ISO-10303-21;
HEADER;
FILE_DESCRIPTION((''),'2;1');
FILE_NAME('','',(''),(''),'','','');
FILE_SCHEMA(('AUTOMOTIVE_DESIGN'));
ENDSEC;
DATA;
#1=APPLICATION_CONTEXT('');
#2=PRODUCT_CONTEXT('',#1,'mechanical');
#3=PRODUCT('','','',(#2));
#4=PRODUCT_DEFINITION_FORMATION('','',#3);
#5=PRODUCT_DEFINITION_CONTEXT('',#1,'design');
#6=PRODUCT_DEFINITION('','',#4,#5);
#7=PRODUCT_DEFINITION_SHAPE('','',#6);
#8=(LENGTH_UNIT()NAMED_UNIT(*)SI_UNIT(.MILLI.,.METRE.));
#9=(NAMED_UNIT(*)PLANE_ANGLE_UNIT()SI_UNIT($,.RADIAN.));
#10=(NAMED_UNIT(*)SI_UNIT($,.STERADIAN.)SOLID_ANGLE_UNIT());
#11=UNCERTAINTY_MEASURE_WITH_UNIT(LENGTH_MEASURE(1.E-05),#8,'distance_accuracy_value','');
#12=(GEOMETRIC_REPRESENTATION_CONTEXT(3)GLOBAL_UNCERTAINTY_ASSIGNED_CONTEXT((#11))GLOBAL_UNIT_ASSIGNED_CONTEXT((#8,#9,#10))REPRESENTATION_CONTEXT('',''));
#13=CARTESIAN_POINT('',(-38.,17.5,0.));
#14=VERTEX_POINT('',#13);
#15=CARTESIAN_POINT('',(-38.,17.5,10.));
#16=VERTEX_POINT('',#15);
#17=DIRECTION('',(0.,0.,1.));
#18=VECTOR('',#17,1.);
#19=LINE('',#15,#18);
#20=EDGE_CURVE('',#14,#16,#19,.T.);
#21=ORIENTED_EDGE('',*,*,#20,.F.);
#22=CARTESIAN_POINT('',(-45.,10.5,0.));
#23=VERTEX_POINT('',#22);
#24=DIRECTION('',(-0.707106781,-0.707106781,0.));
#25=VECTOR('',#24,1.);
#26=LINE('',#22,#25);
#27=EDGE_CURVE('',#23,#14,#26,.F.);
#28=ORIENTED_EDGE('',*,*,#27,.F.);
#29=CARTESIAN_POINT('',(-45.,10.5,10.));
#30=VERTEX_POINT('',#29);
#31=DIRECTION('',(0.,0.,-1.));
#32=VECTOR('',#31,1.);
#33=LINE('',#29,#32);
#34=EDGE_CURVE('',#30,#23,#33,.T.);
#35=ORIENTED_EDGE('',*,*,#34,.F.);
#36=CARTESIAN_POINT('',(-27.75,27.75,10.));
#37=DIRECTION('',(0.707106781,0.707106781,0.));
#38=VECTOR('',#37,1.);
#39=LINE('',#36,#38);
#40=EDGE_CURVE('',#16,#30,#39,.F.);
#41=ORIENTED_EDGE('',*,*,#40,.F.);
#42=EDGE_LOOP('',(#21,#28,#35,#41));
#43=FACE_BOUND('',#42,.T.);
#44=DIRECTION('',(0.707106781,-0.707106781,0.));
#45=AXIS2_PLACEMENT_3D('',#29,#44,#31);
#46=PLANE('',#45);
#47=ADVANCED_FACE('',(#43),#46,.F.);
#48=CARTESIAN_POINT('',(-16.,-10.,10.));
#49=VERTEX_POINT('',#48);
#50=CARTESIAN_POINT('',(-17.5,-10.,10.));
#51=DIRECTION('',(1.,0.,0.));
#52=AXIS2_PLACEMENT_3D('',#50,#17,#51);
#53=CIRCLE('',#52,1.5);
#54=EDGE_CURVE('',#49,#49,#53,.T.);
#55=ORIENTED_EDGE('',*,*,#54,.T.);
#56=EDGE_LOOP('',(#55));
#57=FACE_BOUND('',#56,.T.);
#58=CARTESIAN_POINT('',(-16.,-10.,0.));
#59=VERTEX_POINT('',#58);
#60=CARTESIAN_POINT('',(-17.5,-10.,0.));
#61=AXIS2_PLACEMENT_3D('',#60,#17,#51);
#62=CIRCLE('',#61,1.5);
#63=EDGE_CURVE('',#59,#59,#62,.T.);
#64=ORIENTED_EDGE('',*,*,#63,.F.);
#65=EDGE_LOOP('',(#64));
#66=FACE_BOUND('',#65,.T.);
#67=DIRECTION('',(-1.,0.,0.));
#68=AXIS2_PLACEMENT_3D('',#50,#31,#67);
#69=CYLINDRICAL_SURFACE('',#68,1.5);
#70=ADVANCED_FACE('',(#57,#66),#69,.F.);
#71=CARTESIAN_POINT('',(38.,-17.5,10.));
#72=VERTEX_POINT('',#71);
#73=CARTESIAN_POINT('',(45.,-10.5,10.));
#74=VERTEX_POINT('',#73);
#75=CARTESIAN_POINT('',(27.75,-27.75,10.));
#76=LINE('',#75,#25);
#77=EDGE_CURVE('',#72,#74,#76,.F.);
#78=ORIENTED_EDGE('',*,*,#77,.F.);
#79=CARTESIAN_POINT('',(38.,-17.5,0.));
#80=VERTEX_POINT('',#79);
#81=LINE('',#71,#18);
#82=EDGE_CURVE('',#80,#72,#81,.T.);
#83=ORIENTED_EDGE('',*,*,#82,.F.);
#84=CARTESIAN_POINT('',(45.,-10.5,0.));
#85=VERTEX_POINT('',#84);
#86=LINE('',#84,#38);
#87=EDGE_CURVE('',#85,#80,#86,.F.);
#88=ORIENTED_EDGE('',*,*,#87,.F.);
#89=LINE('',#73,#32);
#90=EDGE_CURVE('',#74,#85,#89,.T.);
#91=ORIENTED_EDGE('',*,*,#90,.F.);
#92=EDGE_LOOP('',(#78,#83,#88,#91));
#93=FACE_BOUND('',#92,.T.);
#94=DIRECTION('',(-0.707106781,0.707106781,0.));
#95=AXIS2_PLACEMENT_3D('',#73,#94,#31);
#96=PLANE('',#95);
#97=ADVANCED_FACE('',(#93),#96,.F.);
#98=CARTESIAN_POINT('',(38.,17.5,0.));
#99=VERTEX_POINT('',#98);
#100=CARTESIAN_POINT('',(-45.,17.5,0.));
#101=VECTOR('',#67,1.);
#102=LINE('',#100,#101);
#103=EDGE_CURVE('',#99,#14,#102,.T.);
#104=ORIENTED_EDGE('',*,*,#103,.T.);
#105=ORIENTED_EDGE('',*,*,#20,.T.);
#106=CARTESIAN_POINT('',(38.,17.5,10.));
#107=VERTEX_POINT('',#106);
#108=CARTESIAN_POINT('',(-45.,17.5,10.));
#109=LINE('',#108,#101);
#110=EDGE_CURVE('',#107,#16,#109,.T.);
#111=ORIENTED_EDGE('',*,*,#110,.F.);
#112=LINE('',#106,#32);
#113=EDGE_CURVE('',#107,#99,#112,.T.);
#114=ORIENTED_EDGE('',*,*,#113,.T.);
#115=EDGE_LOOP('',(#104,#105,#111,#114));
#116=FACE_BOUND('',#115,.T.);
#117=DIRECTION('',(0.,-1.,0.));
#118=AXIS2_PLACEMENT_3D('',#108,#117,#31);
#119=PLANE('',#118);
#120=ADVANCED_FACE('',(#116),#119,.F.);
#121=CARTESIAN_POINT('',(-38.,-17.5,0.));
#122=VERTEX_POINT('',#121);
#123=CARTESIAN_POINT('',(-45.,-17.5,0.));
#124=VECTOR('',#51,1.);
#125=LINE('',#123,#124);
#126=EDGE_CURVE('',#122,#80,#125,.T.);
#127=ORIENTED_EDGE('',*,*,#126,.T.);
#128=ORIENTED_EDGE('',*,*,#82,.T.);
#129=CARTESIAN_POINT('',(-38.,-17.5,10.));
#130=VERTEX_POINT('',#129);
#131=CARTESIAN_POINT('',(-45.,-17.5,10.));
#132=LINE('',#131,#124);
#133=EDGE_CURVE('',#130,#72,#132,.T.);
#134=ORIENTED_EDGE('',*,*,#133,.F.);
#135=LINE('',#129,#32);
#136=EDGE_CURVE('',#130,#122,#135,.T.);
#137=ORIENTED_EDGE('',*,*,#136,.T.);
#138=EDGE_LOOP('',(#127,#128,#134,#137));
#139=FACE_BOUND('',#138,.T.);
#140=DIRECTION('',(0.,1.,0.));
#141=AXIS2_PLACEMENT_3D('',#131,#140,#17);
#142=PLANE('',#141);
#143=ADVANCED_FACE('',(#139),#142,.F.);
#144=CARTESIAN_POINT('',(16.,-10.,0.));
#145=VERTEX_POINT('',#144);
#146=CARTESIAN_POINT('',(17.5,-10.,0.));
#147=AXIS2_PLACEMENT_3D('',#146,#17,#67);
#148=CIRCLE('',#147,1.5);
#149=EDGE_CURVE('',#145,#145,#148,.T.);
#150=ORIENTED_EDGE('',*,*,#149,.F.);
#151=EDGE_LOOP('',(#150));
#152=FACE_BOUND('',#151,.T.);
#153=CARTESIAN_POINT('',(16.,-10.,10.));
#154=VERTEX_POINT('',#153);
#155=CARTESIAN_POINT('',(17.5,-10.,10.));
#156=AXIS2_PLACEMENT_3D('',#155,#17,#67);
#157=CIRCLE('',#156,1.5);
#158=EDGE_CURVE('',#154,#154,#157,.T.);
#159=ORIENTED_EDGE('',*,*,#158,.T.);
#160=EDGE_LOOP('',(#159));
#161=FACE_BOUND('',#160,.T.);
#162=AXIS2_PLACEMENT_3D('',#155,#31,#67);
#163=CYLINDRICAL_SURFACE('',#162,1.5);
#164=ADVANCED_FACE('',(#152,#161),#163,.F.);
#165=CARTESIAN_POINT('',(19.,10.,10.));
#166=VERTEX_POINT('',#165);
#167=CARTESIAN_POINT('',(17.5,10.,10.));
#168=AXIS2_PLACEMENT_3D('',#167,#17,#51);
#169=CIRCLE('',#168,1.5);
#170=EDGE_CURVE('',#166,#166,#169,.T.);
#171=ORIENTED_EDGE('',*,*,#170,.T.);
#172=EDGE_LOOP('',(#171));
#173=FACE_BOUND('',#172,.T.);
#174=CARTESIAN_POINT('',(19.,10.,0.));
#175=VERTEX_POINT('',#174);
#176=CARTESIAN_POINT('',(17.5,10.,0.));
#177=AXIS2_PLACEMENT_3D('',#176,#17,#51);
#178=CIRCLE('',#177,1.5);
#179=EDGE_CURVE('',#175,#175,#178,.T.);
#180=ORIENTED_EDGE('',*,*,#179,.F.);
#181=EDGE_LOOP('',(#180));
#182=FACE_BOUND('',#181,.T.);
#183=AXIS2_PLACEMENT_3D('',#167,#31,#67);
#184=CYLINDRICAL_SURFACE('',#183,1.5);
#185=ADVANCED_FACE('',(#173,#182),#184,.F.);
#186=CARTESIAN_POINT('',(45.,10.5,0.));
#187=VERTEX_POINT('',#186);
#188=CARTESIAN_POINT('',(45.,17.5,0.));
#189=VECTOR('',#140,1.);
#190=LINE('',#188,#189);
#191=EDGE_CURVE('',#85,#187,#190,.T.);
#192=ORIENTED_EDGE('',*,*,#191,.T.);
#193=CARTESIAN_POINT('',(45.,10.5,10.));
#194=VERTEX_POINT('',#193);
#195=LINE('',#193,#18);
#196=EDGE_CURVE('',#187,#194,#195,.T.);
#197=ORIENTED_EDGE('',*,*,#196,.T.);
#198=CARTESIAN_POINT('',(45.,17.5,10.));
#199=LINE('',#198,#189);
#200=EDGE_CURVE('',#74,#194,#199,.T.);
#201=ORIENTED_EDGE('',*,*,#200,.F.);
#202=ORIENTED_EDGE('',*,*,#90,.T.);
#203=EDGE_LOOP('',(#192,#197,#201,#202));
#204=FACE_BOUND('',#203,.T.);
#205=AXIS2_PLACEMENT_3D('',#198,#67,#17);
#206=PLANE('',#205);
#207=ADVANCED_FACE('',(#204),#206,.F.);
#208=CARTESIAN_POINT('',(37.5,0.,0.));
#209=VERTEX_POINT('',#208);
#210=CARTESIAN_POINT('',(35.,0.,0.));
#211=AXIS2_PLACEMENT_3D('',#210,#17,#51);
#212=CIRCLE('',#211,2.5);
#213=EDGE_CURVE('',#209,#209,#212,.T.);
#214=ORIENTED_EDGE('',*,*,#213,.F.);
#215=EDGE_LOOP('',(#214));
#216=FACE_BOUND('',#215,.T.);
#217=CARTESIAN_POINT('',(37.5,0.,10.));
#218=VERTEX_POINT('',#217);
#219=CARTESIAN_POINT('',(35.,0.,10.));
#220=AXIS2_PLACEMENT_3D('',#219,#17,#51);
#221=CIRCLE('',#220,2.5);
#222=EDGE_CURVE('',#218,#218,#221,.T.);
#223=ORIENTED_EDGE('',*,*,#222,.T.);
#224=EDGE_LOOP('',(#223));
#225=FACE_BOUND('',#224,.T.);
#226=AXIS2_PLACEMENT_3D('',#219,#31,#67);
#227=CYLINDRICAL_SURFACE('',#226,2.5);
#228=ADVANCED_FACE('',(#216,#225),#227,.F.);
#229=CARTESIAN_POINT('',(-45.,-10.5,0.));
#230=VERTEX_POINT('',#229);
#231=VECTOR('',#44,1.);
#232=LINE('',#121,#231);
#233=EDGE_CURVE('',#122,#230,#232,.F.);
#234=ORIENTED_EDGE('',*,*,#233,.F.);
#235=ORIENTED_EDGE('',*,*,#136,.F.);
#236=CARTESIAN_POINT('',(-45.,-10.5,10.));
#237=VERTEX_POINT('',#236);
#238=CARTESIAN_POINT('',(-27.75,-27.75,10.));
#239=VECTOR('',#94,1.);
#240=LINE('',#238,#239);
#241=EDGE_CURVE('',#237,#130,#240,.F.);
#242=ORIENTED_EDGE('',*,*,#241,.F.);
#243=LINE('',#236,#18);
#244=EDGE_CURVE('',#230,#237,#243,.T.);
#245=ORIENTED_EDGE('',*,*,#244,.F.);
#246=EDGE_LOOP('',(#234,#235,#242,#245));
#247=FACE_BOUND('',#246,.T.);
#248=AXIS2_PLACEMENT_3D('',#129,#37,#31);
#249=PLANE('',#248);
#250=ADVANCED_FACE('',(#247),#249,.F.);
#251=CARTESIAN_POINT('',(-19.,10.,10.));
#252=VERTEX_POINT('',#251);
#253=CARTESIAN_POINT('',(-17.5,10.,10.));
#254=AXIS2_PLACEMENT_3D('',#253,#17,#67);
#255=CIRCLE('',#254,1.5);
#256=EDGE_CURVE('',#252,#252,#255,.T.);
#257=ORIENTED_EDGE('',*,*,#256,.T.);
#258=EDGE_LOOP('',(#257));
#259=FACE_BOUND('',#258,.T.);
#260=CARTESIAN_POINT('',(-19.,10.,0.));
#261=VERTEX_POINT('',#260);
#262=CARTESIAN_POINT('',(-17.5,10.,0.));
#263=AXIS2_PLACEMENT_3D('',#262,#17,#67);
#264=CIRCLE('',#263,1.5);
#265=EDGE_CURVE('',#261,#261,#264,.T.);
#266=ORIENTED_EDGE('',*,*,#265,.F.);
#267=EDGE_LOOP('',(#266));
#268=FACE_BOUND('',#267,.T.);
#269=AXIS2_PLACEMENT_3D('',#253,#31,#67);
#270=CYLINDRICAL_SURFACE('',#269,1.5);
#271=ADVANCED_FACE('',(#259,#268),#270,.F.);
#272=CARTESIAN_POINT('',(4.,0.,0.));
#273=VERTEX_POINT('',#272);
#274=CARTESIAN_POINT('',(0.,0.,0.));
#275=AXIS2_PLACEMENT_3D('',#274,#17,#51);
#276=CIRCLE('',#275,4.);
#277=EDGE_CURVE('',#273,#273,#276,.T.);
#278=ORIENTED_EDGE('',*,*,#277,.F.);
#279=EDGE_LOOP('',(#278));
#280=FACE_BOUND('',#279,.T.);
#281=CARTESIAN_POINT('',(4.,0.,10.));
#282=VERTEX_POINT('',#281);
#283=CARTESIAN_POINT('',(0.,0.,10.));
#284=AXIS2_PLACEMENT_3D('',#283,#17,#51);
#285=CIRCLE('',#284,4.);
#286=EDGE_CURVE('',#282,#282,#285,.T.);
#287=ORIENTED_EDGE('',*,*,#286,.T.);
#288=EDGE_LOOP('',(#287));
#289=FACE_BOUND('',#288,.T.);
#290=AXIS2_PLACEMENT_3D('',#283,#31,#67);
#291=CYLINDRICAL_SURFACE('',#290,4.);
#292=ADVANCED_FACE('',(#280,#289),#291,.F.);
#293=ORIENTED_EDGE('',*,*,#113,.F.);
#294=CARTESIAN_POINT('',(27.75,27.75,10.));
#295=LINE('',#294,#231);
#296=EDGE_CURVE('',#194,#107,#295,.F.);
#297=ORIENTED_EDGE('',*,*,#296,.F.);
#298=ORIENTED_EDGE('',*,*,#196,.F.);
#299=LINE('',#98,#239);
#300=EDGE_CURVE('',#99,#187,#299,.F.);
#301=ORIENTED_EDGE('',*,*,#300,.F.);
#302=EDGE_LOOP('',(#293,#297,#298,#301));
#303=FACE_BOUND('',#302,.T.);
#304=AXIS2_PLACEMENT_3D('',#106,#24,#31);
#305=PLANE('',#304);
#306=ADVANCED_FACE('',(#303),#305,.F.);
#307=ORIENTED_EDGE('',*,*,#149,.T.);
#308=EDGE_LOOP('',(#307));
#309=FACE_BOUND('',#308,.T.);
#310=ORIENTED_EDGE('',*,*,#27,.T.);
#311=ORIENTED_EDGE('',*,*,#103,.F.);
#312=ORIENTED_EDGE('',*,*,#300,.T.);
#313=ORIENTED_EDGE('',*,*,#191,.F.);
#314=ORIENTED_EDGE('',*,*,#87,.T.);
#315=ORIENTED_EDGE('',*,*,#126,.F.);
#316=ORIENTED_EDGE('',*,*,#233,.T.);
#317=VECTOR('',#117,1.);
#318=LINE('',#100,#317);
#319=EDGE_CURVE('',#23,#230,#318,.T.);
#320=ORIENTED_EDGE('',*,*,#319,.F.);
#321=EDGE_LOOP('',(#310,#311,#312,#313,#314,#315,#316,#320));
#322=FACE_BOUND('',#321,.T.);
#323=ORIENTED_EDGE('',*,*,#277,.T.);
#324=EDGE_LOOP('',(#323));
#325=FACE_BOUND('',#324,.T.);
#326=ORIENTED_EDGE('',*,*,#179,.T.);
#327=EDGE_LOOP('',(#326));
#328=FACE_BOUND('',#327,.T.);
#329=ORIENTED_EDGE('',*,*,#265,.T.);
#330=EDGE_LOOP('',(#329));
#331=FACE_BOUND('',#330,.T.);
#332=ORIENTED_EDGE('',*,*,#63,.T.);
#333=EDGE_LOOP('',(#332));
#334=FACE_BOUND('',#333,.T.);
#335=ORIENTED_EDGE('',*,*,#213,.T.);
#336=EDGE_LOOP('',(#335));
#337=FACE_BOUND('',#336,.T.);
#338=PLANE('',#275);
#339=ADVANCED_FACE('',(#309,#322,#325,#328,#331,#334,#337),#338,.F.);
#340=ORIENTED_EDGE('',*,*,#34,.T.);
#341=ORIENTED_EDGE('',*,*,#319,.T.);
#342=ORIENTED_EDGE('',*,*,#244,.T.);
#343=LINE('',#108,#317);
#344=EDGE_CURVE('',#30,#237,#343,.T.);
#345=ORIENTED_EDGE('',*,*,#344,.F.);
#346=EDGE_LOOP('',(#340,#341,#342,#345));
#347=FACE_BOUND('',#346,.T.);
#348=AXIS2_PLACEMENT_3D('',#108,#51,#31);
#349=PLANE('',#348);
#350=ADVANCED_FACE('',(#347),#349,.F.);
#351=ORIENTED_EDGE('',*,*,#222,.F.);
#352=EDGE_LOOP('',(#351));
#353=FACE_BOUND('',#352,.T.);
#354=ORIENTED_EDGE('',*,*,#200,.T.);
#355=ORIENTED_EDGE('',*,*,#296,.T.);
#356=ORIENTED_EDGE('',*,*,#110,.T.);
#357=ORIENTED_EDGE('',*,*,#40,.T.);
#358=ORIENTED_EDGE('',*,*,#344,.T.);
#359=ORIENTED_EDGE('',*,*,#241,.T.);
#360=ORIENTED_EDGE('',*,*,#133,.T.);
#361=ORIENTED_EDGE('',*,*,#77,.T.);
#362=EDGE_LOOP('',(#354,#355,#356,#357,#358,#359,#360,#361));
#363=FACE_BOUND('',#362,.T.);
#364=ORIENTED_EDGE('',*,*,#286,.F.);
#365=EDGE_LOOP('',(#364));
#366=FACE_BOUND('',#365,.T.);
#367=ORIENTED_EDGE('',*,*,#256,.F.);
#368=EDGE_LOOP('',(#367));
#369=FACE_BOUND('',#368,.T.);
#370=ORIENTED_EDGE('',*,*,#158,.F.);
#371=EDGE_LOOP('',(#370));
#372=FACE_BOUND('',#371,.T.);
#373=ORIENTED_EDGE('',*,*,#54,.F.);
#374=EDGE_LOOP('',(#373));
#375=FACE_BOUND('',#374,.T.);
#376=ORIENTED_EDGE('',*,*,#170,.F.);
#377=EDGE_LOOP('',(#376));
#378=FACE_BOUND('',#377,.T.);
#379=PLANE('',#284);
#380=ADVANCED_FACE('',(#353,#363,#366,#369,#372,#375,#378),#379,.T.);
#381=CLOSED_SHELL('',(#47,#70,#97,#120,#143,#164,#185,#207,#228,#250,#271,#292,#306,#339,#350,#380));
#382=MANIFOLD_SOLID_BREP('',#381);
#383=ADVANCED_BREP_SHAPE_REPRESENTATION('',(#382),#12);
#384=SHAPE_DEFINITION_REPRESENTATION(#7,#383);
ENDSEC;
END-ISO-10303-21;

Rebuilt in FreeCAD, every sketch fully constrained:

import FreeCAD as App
import Part
import Sketcher
from FreeCAD import Vector


def edges_at(feature, points):
    """Names of the edges that pass closest to the given points."""
    edges = feature.Shape.Edges
    near = lambda p: min(range(len(edges)), key=lambda i: edges[i].distToShape(Part.Vertex(*p))[0])
    return sorted({f"Edge{near(p) + 1}" for p in points})


def add_polygon(sketch, points):
    """Adds a closed chain of lines whose ends are joined by coincident constraints."""
    first, n = sketch.GeometryCount, len(points)
    for a, b in zip(points, points[1:] + points[:1]):
        sketch.addGeometry(Part.LineSegment(App.Vector(*a, 0), App.Vector(*b, 0)), False)
    for i in range(n):
        sketch.addConstraint(Sketcher.Constraint("Coincident", first + i, 2, first + (i + 1) % n, 1))

doc = App.newDocument("Part")
body = doc.addObject("PartDesign::Body", "Body")

# Sketch on XY plane
sketch1 = body.newObject("Sketcher::SketchObject", "Sketch")
sketch1.AttachmentSupport = (doc.getObject("XY_Plane"), [""])
sketch1.MapMode = "FlatFace"
add_polygon(sketch1, [(-45, 17.5), (-45, -17.5), (45, -17.5), (45, 17.5)])  # lines 0-3
sketch1.addGeometry(Part.Circle(Vector(-17.5, -10, 0), Vector(0, 0, 1), 1.5), False)  # 4
sketch1.addGeometry(Part.Circle(Vector(17.5, -10, 0), Vector(0, 0, 1), 1.5), False)  # 5
sketch1.addGeometry(Part.Circle(Vector(0, 0, 0), Vector(0, 0, 1), 4), False)  # 6
sketch1.addGeometry(Part.Circle(Vector(-17.5, 10, 0), Vector(0, 0, 1), 1.5), False)  # 7
sketch1.addGeometry(Part.Circle(Vector(35, 0, 0), Vector(0, 0, 1), 2.5), False)  # 8
sketch1.addGeometry(Part.Circle(Vector(17.5, 10, 0), Vector(0, 0, 1), 1.5), False)  # 9
sketch1.addConstraint(Sketcher.Constraint("Vertical", 0))
sketch1.addConstraint(Sketcher.Constraint("Horizontal", 1))
sketch1.addConstraint(Sketcher.Constraint("Vertical", 2))
sketch1.addConstraint(Sketcher.Constraint("Horizontal", 3))
sketch1.addConstraint(Sketcher.Constraint("Coincident", 6, 3, -1, 1))
sketch1.addConstraint(Sketcher.Constraint("Equal", 4, 5))
sketch1.addConstraint(Sketcher.Constraint("Equal", 5, 7))
sketch1.addConstraint(Sketcher.Constraint("Equal", 7, 9))
sketch1.addConstraint(Sketcher.Constraint("Symmetric", 5, 3, 7, 3, -1, 1))
sketch1.addConstraint(Sketcher.Constraint("Symmetric", 4, 3, 9, 3, -1, 1))
sketch1.addConstraint(Sketcher.Constraint("Symmetric", 0, 2, 2, 2, -1, 1))
sketch1.addConstraint(Sketcher.Constraint("Symmetric", 4, 3, 5, 3, -2))
sketch1.addConstraint(Sketcher.Constraint("PointOnObject", 8, 3, -1))
sketch1.addConstraint(Sketcher.Constraint("Diameter", 4, 3.0))
sketch1.addConstraint(Sketcher.Constraint("Diameter", 6, 8.0))
sketch1.addConstraint(Sketcher.Constraint("Diameter", 8, 5.0))
sketch1.addConstraint(Sketcher.Constraint("DistanceX", 1, 1, 1, 2, 90.0))
sketch1.addConstraint(Sketcher.Constraint("DistanceY", 0, 2, 0, 1, 35.0))
sketch1.addConstraint(Sketcher.Constraint("DistanceY", 4, 3, -1, 1, 10.0))
sketch1.addConstraint(Sketcher.Constraint("DistanceX", -1, 1, 8, 3, 35.0))
sketch1.addConstraint(Sketcher.Constraint("DistanceX", 4, 3, 5, 3, 35.0))
pad1 = body.newObject("PartDesign::Pad", "Pad")
pad1.Profile = sketch1
pad1.Length = 10
doc.recompute()

chamfer = body.newObject("PartDesign::Chamfer", "Chamfer")
chamfer.Base = (pad1, edges_at(pad1, [
    (-45, 17.5, 5),
    (45, 17.5, 5),
    (45, -17.5, 5),
    (-45, -17.5, 5),
]))
chamfer.Size = 7

doc.recompute()
